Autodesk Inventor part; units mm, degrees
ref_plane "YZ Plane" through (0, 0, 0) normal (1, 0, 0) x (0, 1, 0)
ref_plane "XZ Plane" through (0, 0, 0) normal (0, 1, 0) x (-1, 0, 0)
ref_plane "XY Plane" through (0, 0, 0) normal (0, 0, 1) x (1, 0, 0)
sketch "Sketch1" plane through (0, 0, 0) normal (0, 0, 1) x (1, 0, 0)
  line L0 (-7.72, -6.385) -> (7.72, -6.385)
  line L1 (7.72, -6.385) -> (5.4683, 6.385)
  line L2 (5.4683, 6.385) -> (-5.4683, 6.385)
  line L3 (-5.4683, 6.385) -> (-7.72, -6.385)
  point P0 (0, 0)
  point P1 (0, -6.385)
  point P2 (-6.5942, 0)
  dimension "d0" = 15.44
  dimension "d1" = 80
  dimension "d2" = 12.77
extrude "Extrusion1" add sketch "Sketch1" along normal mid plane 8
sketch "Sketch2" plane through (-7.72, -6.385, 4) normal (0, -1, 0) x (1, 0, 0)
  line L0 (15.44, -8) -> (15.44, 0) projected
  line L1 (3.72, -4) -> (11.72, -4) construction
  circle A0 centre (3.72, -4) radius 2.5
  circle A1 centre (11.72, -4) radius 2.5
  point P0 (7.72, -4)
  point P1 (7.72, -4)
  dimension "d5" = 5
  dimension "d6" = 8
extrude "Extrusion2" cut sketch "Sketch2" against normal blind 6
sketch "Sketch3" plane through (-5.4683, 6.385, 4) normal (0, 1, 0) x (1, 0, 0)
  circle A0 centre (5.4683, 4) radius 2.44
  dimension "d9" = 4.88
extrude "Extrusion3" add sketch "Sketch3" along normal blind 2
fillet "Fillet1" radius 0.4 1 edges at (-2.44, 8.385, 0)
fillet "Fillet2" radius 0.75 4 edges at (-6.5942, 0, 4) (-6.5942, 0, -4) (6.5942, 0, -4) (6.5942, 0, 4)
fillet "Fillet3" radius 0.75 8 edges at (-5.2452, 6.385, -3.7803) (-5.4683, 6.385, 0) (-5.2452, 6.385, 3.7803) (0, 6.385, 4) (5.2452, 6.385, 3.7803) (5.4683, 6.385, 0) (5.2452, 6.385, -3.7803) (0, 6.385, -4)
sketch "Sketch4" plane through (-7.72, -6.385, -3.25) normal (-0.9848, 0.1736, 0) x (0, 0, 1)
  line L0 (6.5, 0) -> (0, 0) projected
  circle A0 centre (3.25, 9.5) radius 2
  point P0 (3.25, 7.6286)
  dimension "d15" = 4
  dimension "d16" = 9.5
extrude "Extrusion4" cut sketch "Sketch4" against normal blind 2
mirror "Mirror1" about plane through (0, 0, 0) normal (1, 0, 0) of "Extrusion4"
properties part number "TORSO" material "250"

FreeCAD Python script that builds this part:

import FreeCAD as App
import Part
import Sketcher
from FreeCAD import Vector
Q = App.Units.Quantity


def edges_at(feature, points):
    """Names of the edges that pass closest to the given points."""
    edges = feature.Shape.Edges
    near = lambda p: min(range(len(edges)), key=lambda i: edges[i].distToShape(Part.Vertex(*p))[0])
    return sorted({f"Edge{near(p) + 1}" for p in points})


def add_polygon(sketch, points):
    """Adds a closed chain of lines whose ends are joined by coincident constraints."""
    first, n = sketch.GeometryCount, len(points)
    for a, b in zip(points, points[1:] + points[:1]):
        sketch.addGeometry(Part.LineSegment(App.Vector(*a, 0), App.Vector(*b, 0)), False)
    for i in range(n):
        sketch.addConstraint(Sketcher.Constraint("Coincident", first + i, 2, first + (i + 1) % n, 1))

doc = App.newDocument("Part")
params = doc.addObject("Spreadsheet::Sheet", "Params")
for row, (alias, value) in enumerate([
    ("sketch1_width", "15.44 mm"),
    ("pad1_length", "8 mm"),
    ("sketch2_diameter", "5 mm"),
    ("pocket1_length", "6 mm"),
    ("sketch3_diameter", "4.88 mm"),
    ("pad2_length", "2 mm"),
    ("fillet_radius", "0.4 mm"),
    ("fillet2_radius", "0.75 mm"),
    ("fillet3_radius", "0.75 mm"),
    ("sketch4_diameter", "4 mm"),
    ("pocket2_length", "2 mm"),
], start=1):
    params.set(f"A{row}", alias)
    params.set(f"B{row}", "=" + value)
    params.setAlias(f"B{row}", alias)

body = doc.addObject("PartDesign::Body", "Body")

# Sketch on XY plane
sketch1 = body.newObject("Sketcher::SketchObject", "Sketch")
sketch1.AttachmentSupport = (doc.getObject("XY_Plane"), [""])
sketch1.MapMode = "FlatFace"
add_polygon(sketch1, [(-5, 6), (-8, -6), (8, -6), (5, 6)])  # lines 0-3
sketch1.addConstraint([
    Sketcher.Constraint("Horizontal", 1),
    Sketcher.Constraint("Horizontal", 3),
    Sketcher.Constraint("Equal", 0, 2),
    Sketcher.Constraint("DistanceX", 1, 1, 1, 2, Q("15.44 mm")),
    Sketcher.Constraint("Angle", 0, Q("-100 deg")),
    Sketcher.Constraint("DistanceY", 1, 2, 2, 2, Q("12.77 mm")),
    Sketcher.Constraint("DistanceX", 0, 2, -1, 1, Q("7.72 mm")),
    Sketcher.Constraint("DistanceY", 0, 2, -1, 1, Q("6.385 mm")),
])
sketch1.setExpression("Constraints[7]", "Params.sketch1_width")
pad1 = body.newObject("PartDesign::Pad", "Pad")
pad1.Profile = sketch1
pad1.setExpression("Length", "Params.pad1_length")
pad1.Midplane = True

# Sketch on XZ plane
sketch2 = body.newObject("Sketcher::SketchObject", "Sketch001")
sketch2.AttachmentSupport = (doc.getObject("XZ_Plane"), [""])
sketch2.MapMode = "FlatFace"
sketch2.AttachmentOffset = App.Placement(Vector(0, 0, 6.385), App.Rotation())
sketch2.addGeometry([
    Part.Circle(Vector(-4, 0, 0), Vector(0, 0, 1), 2.5),
    Part.Circle(Vector(4, 0, 0), Vector(0, 0, 1), 2.5),
], False)
sketch2.addConstraint([
    Sketcher.Constraint("Equal", 0, 1),
    Sketcher.Constraint("Symmetric", 0, 3, 1, 3, -1, 1),
    Sketcher.Constraint("PointOnObject", 0, 3, -1),
    Sketcher.Constraint("Diameter", 0, Q("5 mm")),
    Sketcher.Constraint("DistanceX", 0, 3, 1, 3, Q("8 mm")),
])
sketch2.setExpression("Constraints[3]", "Params.sketch2_diameter")
pocket1 = body.newObject("PartDesign::Pocket", "Pocket")
pocket1.Profile = sketch2
pocket1.setExpression("Length", "Params.pocket1_length")

# Sketch on XZ plane
sketch3 = body.newObject("Sketcher::SketchObject", "Sketch002")
sketch3.AttachmentSupport = (doc.getObject("XZ_Plane"), [""])
sketch3.MapMode = "FlatFace"
sketch3.AttachmentOffset = App.Placement(Vector(0, 0, -6.385), App.Rotation())
sketch3.addGeometry(Part.Circle(Vector(0, 0, 0), Vector(0, 0, 1), 2.4), False)
sketch3.addConstraint([
    Sketcher.Constraint("Coincident", 0, 3, -1, 1),
    Sketcher.Constraint("Diameter", 0, Q("4.88 mm")),
])
sketch3.setExpression("Constraints[1]", "Params.sketch3_diameter")
pad2 = body.newObject("PartDesign::Pad", "Pad001")
pad2.Profile = sketch3
pad2.setExpression("Length", "Params.pad2_length")
pad2.Reversed = True
doc.recompute()

fillet = body.newObject("PartDesign::Fillet", "Fillet")
fillet.Base = (pad2, edges_at(pad2, [(-2.44, 8.385, 0)]))
fillet.setExpression("Radius", "Params.fillet_radius")
doc.recompute()

fillet2 = body.newObject("PartDesign::Fillet", "Fillet001")
fillet2.Base = (fillet, edges_at(fillet, [
    (-6.594, 0, 4),
    (-6.594, 0, -4),
    (6.594, 0, -4),
    (6.594, 0, 4),
]))
fillet2.setExpression("Radius", "Params.fillet2_radius")
doc.recompute()

fillet3 = body.newObject("PartDesign::Fillet", "Fillet002")
fillet3.Base = (fillet2, edges_at(fillet2, [
    (-5.245, 6.385, -3.78),
    (-5.468, 6.385, 0),
    (-5.245, 6.385, 3.78),
    (0, 6.385, 4),
    (5.245, 6.385, 3.78),
    (5.468, 6.385, 0),
    (5.245, 6.385, -3.78),
    (0, 6.385, -4),
]))
fillet3.setExpression("Radius", "Params.fillet3_radius")

# Sketch on an angled plane
sketch4 = body.newObject("Sketcher::SketchObject", "Sketch003")
sketch4.Placement = App.Placement(Vector(-7.72, -6.385, -3.25), App.Rotation(Vector(0, 0, 1), Vector(0.173648178, 0.984807753, 0), Vector(-0.984807753, 0.173648178, 0), "ZXY"))
sketch4.addGeometry(Part.Circle(Vector(3.2, 9.5, 0), Vector(0, 0, 1), 2), False)
sketch4.addConstraint([
    Sketcher.Constraint("Diameter", 0, Q("4 mm")),
    Sketcher.Constraint("DistanceY", -1, 1, 0, 3, Q("9.5 mm")),
    Sketcher.Constraint("DistanceX", -1, 1, 0, 3, Q("3.25 mm")),
])
sketch4.setExpression("Constraints[0]", "Params.sketch4_diameter")
pocket2 = body.newObject("PartDesign::Pocket", "Pocket001")
pocket2.Profile = sketch4
pocket2.setExpression("Length", "Params.pocket2_length")
doc.recompute()

mirrored = body.newObject("PartDesign::Mirrored", "Mirrored")
mirrored.Originals = [pocket2]
mirrored.MirrorPlane = (doc.getObject("YZ_Plane"), [""])
body.Tip = mirrored

doc.recompute()
